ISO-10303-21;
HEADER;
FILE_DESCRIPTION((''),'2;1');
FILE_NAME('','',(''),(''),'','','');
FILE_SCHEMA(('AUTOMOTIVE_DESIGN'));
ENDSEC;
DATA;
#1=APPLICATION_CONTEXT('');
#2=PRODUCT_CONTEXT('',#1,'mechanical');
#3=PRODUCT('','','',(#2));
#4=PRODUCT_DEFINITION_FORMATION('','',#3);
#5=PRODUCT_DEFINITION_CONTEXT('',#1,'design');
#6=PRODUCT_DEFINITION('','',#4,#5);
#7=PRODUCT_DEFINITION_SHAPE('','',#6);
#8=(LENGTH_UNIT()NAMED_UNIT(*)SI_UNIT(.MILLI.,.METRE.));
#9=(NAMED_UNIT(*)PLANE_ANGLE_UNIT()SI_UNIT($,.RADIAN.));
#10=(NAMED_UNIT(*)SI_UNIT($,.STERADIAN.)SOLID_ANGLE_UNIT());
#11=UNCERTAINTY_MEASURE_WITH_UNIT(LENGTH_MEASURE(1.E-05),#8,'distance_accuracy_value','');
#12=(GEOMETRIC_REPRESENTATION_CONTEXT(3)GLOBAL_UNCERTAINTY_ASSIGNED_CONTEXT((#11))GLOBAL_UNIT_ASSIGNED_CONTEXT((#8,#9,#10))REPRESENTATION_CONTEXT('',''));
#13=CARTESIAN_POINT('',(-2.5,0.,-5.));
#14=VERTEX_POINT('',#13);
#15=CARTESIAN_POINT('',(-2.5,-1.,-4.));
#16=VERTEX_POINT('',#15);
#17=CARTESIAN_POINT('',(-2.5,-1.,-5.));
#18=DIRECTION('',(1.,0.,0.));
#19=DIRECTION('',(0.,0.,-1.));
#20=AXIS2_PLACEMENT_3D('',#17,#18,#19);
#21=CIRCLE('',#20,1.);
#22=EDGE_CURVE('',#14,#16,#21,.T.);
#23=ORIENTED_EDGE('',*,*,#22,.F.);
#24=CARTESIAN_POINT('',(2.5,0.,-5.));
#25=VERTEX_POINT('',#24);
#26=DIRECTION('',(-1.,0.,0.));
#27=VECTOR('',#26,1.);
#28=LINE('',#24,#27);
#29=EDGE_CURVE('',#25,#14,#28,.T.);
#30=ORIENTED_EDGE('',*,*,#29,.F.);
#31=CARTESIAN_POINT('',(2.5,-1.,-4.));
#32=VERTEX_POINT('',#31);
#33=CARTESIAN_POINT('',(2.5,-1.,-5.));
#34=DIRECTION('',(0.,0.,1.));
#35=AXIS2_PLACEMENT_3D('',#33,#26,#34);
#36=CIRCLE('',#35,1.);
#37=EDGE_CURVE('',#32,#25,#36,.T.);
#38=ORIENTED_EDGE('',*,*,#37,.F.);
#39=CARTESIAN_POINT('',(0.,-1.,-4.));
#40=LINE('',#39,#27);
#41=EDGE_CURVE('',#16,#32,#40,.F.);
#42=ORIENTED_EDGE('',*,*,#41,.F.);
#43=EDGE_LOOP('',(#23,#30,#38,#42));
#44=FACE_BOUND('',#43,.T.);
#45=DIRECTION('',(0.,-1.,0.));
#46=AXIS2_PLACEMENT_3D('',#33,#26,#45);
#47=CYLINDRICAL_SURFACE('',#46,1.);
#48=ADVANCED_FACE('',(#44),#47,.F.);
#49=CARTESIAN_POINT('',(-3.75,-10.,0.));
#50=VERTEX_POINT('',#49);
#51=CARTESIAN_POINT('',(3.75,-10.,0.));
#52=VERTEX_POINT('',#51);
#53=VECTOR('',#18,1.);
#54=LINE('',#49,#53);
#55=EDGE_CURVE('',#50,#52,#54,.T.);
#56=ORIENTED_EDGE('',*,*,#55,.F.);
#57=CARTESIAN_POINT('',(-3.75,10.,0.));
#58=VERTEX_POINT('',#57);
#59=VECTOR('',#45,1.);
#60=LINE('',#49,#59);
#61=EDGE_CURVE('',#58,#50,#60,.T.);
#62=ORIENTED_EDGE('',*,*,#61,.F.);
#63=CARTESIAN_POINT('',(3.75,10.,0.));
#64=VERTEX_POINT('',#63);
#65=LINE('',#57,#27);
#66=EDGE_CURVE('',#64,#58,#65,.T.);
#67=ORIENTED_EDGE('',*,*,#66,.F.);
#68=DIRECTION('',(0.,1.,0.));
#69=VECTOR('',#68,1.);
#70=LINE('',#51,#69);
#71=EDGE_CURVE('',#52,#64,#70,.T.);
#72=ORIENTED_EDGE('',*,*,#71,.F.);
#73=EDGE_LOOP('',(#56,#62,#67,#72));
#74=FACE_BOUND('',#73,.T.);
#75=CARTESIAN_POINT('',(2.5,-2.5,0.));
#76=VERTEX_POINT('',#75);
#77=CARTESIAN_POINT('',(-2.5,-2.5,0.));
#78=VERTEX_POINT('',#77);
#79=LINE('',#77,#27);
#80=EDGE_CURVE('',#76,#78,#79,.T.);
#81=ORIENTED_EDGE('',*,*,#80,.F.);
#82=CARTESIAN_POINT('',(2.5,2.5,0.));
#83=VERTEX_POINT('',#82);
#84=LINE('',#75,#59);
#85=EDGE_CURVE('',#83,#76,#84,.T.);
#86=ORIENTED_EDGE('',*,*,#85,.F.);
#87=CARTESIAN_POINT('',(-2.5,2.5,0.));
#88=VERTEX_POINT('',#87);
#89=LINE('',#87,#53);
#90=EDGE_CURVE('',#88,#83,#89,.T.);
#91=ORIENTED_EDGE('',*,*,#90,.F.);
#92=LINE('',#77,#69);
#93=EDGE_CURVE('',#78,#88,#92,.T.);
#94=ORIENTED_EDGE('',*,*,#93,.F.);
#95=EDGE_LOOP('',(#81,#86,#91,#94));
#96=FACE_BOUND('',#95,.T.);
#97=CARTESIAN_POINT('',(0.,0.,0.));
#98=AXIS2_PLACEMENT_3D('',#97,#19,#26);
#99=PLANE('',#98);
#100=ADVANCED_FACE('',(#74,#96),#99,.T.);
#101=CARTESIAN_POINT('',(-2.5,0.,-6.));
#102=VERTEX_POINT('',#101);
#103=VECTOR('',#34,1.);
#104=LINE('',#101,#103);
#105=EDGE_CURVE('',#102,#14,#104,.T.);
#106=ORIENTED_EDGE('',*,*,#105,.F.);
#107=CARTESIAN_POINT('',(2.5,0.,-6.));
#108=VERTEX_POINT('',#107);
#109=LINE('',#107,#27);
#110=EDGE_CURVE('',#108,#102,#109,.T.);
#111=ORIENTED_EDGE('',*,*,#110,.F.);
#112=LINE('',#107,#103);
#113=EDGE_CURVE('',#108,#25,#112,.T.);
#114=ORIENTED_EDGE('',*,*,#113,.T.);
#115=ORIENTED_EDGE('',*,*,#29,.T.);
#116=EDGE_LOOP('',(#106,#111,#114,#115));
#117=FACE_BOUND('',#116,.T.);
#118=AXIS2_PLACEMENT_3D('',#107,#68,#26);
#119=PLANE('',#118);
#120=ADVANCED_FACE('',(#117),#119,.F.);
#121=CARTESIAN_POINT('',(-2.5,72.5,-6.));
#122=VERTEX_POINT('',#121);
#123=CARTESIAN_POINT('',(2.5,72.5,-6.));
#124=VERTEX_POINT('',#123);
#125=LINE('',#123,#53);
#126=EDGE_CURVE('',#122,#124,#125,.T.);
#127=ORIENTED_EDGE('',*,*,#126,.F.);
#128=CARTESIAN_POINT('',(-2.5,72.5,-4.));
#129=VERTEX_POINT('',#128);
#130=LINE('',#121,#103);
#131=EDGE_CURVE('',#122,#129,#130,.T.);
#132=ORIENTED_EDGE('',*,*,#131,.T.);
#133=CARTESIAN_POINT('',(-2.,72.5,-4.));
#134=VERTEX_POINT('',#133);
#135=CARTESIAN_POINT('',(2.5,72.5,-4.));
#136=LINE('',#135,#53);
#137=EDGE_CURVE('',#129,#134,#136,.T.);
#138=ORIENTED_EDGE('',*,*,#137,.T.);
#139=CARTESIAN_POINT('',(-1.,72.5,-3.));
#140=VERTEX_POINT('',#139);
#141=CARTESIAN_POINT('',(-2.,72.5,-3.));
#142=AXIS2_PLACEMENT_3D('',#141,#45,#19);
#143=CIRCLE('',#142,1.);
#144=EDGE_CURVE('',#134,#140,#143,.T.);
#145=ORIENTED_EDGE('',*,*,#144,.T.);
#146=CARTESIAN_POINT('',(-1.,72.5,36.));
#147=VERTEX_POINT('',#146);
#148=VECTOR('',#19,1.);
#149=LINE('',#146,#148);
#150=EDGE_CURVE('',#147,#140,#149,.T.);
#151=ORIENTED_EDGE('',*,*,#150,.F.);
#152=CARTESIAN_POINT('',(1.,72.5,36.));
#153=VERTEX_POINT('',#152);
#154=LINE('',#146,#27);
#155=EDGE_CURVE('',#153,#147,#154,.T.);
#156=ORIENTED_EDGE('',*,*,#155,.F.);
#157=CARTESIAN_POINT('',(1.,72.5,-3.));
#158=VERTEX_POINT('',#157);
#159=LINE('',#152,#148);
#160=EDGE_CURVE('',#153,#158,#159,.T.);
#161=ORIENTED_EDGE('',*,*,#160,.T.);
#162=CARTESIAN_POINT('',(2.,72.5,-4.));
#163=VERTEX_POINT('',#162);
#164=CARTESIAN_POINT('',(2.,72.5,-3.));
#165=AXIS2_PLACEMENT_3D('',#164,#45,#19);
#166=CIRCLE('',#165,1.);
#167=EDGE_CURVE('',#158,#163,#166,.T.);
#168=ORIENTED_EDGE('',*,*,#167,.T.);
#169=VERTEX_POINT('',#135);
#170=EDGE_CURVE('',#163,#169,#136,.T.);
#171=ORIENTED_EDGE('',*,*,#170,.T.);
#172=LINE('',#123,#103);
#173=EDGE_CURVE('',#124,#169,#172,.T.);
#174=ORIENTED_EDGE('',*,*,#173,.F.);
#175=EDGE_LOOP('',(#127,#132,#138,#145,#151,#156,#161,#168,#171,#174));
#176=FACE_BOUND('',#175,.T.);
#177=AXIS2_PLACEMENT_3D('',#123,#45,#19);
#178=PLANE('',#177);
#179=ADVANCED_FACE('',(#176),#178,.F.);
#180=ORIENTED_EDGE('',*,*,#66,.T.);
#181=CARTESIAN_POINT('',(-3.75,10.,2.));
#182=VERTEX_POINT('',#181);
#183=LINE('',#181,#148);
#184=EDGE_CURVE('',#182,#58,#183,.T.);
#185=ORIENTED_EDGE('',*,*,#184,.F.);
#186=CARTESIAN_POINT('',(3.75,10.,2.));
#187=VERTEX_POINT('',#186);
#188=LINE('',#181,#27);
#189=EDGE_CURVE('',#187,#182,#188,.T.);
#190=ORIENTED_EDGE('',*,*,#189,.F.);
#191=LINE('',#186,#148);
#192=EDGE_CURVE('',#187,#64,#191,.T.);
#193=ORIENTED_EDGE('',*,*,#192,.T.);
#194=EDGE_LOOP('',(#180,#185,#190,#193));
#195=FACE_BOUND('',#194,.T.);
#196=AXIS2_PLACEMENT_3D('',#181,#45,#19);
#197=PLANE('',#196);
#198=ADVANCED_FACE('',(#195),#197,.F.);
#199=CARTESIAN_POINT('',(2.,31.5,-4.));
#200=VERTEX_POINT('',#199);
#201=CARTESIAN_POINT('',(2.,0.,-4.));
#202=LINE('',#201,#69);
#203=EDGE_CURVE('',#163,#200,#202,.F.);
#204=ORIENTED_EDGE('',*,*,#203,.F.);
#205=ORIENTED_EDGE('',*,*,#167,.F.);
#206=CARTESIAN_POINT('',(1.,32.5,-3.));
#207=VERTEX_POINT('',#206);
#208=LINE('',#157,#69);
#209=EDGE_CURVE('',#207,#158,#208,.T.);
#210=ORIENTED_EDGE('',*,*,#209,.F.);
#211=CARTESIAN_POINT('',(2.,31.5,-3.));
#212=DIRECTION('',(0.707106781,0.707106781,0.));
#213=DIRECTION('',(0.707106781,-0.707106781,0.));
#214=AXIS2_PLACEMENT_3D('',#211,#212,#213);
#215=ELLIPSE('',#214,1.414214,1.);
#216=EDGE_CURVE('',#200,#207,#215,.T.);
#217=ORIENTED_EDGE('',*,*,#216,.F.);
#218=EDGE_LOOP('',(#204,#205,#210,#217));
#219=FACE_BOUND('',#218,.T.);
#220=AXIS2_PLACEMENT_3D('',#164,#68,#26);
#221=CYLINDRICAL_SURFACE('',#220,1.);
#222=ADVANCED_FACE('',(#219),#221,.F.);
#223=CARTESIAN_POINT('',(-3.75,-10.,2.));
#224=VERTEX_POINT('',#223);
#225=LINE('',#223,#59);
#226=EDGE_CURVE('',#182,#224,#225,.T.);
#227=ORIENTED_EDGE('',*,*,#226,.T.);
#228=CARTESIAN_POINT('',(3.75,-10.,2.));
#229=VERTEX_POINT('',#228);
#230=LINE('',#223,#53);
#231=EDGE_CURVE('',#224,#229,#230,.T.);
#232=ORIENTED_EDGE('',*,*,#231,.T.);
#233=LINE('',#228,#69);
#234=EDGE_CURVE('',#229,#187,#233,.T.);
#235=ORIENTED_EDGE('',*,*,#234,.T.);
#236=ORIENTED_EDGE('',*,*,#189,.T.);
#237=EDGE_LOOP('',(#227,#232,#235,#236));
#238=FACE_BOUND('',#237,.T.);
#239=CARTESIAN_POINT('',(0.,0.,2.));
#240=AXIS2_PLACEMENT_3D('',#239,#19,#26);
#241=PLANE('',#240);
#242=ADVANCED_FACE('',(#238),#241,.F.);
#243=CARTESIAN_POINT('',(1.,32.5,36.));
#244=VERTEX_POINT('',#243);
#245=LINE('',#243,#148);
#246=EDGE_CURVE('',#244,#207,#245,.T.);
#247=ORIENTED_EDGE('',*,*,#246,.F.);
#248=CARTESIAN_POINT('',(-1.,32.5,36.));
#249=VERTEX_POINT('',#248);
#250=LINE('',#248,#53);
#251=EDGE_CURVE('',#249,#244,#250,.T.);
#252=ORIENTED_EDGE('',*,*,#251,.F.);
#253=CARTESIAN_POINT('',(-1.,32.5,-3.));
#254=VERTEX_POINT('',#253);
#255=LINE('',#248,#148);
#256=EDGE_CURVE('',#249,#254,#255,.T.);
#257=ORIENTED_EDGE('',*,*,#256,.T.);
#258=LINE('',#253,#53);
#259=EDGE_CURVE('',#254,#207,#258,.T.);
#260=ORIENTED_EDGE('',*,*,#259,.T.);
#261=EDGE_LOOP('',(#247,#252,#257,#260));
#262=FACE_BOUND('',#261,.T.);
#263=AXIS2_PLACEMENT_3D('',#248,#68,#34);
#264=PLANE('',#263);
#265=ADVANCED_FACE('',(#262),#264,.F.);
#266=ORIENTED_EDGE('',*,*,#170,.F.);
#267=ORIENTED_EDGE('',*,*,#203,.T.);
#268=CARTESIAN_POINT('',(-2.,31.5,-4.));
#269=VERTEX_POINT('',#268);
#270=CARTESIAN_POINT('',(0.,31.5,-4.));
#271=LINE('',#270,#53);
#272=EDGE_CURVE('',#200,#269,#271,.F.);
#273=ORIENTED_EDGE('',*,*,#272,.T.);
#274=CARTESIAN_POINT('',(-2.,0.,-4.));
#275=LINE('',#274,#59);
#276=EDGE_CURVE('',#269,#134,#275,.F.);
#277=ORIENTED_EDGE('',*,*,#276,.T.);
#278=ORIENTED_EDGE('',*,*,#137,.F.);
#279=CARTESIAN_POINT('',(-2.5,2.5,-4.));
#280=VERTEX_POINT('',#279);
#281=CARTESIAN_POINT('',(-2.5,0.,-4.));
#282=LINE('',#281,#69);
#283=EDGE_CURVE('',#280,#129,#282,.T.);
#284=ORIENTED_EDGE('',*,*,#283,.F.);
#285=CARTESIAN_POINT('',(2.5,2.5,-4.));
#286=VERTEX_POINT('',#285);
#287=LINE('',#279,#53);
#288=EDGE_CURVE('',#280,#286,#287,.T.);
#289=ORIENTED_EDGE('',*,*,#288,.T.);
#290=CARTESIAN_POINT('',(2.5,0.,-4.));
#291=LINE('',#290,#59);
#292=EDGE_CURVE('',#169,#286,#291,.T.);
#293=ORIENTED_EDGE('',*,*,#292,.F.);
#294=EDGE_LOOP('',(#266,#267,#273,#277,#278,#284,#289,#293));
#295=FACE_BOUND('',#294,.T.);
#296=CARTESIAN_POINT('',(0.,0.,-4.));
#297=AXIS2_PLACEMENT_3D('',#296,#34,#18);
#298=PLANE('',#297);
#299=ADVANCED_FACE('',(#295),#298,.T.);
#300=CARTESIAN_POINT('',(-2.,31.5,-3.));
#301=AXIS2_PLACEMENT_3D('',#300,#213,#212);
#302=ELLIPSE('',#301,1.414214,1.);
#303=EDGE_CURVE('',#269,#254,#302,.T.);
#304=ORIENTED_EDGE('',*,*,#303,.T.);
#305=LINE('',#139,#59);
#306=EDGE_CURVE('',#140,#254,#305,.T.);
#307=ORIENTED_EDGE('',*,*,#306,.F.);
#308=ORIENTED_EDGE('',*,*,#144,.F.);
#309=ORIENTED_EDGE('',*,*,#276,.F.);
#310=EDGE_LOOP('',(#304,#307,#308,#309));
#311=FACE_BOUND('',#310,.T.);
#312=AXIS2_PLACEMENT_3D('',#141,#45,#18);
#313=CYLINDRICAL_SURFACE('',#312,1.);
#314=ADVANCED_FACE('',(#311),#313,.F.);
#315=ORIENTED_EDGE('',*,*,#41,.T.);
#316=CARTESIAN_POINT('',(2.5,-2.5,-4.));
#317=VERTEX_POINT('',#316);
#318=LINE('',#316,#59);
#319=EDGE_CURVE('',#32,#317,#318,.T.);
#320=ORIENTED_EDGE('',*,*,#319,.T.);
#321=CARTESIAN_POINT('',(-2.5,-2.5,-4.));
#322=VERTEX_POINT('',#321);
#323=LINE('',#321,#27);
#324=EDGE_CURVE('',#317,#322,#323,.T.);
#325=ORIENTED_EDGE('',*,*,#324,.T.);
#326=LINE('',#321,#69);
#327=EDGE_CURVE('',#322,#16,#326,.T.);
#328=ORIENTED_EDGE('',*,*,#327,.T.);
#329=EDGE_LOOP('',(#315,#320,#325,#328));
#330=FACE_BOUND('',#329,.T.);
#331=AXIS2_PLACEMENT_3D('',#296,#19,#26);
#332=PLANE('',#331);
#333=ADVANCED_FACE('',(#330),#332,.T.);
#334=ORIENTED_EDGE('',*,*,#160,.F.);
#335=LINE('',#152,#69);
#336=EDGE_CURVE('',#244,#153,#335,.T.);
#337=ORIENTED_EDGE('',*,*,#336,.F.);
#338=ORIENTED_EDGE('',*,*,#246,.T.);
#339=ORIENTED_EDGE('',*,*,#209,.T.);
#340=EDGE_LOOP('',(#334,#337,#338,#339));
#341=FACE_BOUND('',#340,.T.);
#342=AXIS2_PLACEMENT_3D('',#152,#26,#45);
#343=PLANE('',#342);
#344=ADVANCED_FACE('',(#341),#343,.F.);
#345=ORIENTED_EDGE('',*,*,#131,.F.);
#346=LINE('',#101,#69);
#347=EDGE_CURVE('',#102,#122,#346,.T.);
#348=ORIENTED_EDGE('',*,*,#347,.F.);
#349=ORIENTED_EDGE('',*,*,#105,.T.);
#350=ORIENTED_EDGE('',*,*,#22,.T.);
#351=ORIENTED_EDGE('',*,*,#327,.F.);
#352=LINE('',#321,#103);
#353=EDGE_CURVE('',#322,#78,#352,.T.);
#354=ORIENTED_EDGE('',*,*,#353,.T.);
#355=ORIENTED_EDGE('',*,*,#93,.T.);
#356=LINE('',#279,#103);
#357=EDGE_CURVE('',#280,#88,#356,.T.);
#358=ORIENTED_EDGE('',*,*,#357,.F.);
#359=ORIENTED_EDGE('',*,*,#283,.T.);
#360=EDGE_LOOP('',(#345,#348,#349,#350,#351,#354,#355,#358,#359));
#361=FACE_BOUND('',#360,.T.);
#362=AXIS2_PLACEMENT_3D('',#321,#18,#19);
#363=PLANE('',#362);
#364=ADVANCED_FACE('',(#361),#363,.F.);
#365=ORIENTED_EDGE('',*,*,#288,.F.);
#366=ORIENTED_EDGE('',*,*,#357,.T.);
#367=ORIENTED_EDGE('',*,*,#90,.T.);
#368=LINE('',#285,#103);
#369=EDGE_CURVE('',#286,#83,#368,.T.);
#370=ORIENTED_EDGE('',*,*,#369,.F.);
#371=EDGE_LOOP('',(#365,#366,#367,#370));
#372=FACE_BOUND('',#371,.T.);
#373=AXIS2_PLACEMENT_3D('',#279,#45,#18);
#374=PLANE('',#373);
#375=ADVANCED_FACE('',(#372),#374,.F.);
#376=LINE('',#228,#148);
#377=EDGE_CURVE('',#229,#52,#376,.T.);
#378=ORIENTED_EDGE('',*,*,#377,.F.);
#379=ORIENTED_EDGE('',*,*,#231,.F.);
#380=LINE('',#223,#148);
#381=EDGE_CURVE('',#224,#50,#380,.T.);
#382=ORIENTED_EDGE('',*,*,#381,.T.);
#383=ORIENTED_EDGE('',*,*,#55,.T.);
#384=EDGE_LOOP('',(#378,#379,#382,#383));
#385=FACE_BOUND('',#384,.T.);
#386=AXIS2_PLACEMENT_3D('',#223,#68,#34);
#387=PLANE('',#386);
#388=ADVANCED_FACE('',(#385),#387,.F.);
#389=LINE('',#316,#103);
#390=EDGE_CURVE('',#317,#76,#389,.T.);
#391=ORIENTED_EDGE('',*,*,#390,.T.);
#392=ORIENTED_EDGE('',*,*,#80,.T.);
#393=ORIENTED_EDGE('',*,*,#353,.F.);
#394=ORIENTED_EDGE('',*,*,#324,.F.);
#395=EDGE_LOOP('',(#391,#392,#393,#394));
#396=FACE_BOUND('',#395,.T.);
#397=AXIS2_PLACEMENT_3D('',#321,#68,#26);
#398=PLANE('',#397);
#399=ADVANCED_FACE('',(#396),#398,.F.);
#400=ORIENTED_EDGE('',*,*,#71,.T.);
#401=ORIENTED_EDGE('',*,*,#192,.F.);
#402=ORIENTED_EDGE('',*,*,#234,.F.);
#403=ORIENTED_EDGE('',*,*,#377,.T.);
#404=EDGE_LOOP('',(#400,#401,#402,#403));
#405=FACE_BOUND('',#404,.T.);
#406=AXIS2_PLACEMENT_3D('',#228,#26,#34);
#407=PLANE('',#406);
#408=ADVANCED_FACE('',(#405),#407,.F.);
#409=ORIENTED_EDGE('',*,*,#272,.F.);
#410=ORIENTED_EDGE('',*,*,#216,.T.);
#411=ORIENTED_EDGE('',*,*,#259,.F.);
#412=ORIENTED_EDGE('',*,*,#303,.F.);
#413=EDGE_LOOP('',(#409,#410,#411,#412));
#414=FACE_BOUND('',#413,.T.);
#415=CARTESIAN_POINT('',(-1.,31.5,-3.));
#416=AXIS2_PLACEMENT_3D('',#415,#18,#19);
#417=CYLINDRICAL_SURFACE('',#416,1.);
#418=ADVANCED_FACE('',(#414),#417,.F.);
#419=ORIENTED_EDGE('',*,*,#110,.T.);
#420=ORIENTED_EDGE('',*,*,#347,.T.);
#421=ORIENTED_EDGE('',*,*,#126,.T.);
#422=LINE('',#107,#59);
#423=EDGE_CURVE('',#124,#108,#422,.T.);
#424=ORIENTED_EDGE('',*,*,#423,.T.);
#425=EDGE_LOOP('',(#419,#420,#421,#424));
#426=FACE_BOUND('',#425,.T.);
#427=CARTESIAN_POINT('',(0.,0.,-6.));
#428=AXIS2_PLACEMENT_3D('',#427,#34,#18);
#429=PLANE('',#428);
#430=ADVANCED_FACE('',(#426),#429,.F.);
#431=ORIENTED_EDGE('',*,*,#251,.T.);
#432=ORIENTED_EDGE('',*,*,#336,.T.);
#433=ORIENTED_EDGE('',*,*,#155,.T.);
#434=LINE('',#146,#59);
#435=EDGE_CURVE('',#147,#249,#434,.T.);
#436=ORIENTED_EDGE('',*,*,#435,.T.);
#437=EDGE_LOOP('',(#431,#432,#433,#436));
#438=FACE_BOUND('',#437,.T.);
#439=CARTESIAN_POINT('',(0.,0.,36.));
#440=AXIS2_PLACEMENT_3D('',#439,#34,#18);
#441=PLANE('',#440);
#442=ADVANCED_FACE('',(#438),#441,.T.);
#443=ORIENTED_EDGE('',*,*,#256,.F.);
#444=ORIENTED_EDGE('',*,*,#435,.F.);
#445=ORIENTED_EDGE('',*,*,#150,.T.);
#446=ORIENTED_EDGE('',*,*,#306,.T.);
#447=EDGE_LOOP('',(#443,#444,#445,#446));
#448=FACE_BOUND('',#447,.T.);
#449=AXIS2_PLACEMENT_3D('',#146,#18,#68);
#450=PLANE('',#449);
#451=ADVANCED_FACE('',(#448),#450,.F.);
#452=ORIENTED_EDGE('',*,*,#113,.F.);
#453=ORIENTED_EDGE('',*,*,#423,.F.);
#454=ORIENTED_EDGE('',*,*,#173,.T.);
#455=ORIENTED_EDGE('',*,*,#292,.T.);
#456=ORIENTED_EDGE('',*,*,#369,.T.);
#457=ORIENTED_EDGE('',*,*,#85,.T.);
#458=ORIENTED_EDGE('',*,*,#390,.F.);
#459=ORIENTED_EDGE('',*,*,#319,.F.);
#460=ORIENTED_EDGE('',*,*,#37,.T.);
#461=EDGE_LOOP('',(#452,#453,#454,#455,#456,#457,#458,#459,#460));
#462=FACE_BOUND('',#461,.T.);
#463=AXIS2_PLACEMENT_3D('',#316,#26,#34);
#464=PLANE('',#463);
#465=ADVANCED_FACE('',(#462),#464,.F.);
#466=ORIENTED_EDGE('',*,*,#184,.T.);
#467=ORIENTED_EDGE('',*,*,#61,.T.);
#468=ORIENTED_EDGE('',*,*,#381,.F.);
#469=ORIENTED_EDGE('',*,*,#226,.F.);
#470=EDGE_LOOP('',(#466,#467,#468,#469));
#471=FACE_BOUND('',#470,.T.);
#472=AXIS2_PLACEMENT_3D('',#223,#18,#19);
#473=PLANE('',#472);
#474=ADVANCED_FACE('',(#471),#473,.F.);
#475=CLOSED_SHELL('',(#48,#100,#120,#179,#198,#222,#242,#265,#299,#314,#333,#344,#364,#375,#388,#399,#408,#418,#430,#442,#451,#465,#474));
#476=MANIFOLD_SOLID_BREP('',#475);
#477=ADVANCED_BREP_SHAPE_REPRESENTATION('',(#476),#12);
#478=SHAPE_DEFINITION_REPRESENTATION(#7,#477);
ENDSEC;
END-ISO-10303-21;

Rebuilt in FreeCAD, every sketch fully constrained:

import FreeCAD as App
import Part
import Sketcher


def edges_at(feature, points):
    """Names of the edges that pass closest to the given points."""
    edges = feature.Shape.Edges
    near = lambda p: min(range(len(edges)), key=lambda i: edges[i].distToShape(Part.Vertex(*p))[0])
    return sorted({f"Edge{near(p) + 1}" for p in points})


def add_polygon(sketch, points):
    """Adds a closed chain of lines whose ends are joined by coincident constraints."""
    first, n = sketch.GeometryCount, len(points)
    for a, b in zip(points, points[1:] + points[:1]):
        sketch.addGeometry(Part.LineSegment(App.Vector(*a, 0), App.Vector(*b, 0)), False)
    for i in range(n):
        sketch.addConstraint(Sketcher.Constraint("Coincident", first + i, 2, first + (i + 1) % n, 1))

doc = App.newDocument("Part")
body = doc.addObject("PartDesign::Body", "Body")

# Sketch on XY plane
sketch1 = body.newObject("Sketcher::SketchObject", "Sketch")
sketch1.AttachmentSupport = (doc.getObject("XY_Plane"), [""])
sketch1.MapMode = "FlatFace"
add_polygon(sketch1, [(-3.75, 10), (-3.75, -10), (3.75, -10), (3.75, 10)])  # lines 0-3
sketch1.addConstraint([
    Sketcher.Constraint("Vertical", 0),
    Sketcher.Constraint("Horizontal", 1),
    Sketcher.Constraint("Vertical", 2),
    Sketcher.Constraint("Horizontal", 3),
    Sketcher.Constraint("Symmetric", 0, 2, 2, 2, -1, 1),
    Sketcher.Constraint("DistanceY", 0, 2, 0, 1, 20.0),
    Sketcher.Constraint("DistanceX", 1, 1, 1, 2, 7.5),
])
pad1 = body.newObject("PartDesign::Pad", "Pad")
pad1.Profile = sketch1
pad1.Length = 2

# Sketch on XY plane
sketch2 = body.newObject("Sketcher::SketchObject", "Sketch001")
sketch2.AttachmentSupport = (doc.getObject("XY_Plane"), [""])
sketch2.MapMode = "FlatFace"
add_polygon(sketch2, [(2.5, 2.5), (2.5, -2.5), (-2.5, -2.5), (-2.5, 2.5)])  # lines 0-3
sketch2.addConstraint([
    Sketcher.Constraint("Vertical", 0),
    Sketcher.Constraint("Horizontal", 1),
    Sketcher.Constraint("Vertical", 2),
    Sketcher.Constraint("Horizontal", 3),
    Sketcher.Constraint("Symmetric", 0, 2, 2, 2, -1, 1),
    Sketcher.Constraint("Equal", 3, 0),
    Sketcher.Constraint("DistanceX", 1, 2, 1, 1, 5.0),
])
pad2 = body.newObject("PartDesign::Pad", "Pad001")
pad2.Profile = sketch2
pad2.Length = 4
pad2.Reversed = True

# Sketch on XY plane
sketch3 = body.newObject("Sketcher::SketchObject", "Sketch002")
sketch3.AttachmentSupport = (doc.getObject("XY_Plane"), [""])
sketch3.MapMode = "FlatFace"
sketch3.AttachmentOffset = App.Placement(App.Vector(0, 0, -4), App.Rotation())
add_polygon(sketch3, [(2.5, 72.5), (2.5, 0), (-2.5, 0), (-2.5, 72.5)])  # lines 0-3
sketch3.addConstraint([
    Sketcher.Constraint("Vertical", 0),
    Sketcher.Constraint("Horizontal", 1),
    Sketcher.Constraint("Vertical", 2),
    Sketcher.Constraint("Horizontal", 3),
    Sketcher.Constraint("Symmetric", 0, 2, 1, 2, -1, 1),
    Sketcher.Constraint("DistanceX", 1, 2, 1, 1, 5.0),
    Sketcher.Constraint("DistanceY", 0, 2, 0, 1, 72.5),
])
pad3 = body.newObject("PartDesign::Pad", "Pad002")
pad3.Profile = sketch3
pad3.Length = 2
pad3.Reversed = True

# Sketch on XY plane
sketch4 = body.newObject("Sketcher::SketchObject", "Sketch003")
sketch4.AttachmentSupport = (doc.getObject("XY_Plane"), [""])
sketch4.MapMode = "FlatFace"
sketch4.AttachmentOffset = App.Placement(App.Vector(0, 0, -4), App.Rotation())
add_polygon(sketch4, [(-1, 72.5), (-1, 32.5), (1, 32.5), (1, 72.5)])  # lines 0-3
sketch4.addConstraint([
    Sketcher.Constraint("Vertical", 0),
    Sketcher.Constraint("Horizontal", 1),
    Sketcher.Constraint("Vertical", 2),
    Sketcher.Constraint("Horizontal", 3),
    Sketcher.Constraint("DistanceX", 1, 1, 1, 2, 2.0),
    Sketcher.Constraint("DistanceY", 0, 2, 0, 1, 40.0),
    Sketcher.Constraint("DistanceX", 0, 2, -1, 1, 1.0),
    Sketcher.Constraint("DistanceY", -1, 1, 0, 2, 32.5),
])
pad4 = body.newObject("PartDesign::Pad", "Pad003")
pad4.Profile = sketch4
pad4.Length = 40
doc.recompute()

fillet = body.newObject("PartDesign::Fillet", "Fillet")
fillet.Base = (pad4, edges_at(pad4, [(0, 0, -4)]))
fillet.Radius = 1
doc.recompute()

fillet2 = body.newObject("PartDesign::Fillet", "Fillet001")
fillet2.Base = (fillet, edges_at(fillet, [(-1, 52.5, -4), (0, 32.5, -4), (1, 52.5, -4)]))
fillet2.Radius = 1

doc.recompute()
